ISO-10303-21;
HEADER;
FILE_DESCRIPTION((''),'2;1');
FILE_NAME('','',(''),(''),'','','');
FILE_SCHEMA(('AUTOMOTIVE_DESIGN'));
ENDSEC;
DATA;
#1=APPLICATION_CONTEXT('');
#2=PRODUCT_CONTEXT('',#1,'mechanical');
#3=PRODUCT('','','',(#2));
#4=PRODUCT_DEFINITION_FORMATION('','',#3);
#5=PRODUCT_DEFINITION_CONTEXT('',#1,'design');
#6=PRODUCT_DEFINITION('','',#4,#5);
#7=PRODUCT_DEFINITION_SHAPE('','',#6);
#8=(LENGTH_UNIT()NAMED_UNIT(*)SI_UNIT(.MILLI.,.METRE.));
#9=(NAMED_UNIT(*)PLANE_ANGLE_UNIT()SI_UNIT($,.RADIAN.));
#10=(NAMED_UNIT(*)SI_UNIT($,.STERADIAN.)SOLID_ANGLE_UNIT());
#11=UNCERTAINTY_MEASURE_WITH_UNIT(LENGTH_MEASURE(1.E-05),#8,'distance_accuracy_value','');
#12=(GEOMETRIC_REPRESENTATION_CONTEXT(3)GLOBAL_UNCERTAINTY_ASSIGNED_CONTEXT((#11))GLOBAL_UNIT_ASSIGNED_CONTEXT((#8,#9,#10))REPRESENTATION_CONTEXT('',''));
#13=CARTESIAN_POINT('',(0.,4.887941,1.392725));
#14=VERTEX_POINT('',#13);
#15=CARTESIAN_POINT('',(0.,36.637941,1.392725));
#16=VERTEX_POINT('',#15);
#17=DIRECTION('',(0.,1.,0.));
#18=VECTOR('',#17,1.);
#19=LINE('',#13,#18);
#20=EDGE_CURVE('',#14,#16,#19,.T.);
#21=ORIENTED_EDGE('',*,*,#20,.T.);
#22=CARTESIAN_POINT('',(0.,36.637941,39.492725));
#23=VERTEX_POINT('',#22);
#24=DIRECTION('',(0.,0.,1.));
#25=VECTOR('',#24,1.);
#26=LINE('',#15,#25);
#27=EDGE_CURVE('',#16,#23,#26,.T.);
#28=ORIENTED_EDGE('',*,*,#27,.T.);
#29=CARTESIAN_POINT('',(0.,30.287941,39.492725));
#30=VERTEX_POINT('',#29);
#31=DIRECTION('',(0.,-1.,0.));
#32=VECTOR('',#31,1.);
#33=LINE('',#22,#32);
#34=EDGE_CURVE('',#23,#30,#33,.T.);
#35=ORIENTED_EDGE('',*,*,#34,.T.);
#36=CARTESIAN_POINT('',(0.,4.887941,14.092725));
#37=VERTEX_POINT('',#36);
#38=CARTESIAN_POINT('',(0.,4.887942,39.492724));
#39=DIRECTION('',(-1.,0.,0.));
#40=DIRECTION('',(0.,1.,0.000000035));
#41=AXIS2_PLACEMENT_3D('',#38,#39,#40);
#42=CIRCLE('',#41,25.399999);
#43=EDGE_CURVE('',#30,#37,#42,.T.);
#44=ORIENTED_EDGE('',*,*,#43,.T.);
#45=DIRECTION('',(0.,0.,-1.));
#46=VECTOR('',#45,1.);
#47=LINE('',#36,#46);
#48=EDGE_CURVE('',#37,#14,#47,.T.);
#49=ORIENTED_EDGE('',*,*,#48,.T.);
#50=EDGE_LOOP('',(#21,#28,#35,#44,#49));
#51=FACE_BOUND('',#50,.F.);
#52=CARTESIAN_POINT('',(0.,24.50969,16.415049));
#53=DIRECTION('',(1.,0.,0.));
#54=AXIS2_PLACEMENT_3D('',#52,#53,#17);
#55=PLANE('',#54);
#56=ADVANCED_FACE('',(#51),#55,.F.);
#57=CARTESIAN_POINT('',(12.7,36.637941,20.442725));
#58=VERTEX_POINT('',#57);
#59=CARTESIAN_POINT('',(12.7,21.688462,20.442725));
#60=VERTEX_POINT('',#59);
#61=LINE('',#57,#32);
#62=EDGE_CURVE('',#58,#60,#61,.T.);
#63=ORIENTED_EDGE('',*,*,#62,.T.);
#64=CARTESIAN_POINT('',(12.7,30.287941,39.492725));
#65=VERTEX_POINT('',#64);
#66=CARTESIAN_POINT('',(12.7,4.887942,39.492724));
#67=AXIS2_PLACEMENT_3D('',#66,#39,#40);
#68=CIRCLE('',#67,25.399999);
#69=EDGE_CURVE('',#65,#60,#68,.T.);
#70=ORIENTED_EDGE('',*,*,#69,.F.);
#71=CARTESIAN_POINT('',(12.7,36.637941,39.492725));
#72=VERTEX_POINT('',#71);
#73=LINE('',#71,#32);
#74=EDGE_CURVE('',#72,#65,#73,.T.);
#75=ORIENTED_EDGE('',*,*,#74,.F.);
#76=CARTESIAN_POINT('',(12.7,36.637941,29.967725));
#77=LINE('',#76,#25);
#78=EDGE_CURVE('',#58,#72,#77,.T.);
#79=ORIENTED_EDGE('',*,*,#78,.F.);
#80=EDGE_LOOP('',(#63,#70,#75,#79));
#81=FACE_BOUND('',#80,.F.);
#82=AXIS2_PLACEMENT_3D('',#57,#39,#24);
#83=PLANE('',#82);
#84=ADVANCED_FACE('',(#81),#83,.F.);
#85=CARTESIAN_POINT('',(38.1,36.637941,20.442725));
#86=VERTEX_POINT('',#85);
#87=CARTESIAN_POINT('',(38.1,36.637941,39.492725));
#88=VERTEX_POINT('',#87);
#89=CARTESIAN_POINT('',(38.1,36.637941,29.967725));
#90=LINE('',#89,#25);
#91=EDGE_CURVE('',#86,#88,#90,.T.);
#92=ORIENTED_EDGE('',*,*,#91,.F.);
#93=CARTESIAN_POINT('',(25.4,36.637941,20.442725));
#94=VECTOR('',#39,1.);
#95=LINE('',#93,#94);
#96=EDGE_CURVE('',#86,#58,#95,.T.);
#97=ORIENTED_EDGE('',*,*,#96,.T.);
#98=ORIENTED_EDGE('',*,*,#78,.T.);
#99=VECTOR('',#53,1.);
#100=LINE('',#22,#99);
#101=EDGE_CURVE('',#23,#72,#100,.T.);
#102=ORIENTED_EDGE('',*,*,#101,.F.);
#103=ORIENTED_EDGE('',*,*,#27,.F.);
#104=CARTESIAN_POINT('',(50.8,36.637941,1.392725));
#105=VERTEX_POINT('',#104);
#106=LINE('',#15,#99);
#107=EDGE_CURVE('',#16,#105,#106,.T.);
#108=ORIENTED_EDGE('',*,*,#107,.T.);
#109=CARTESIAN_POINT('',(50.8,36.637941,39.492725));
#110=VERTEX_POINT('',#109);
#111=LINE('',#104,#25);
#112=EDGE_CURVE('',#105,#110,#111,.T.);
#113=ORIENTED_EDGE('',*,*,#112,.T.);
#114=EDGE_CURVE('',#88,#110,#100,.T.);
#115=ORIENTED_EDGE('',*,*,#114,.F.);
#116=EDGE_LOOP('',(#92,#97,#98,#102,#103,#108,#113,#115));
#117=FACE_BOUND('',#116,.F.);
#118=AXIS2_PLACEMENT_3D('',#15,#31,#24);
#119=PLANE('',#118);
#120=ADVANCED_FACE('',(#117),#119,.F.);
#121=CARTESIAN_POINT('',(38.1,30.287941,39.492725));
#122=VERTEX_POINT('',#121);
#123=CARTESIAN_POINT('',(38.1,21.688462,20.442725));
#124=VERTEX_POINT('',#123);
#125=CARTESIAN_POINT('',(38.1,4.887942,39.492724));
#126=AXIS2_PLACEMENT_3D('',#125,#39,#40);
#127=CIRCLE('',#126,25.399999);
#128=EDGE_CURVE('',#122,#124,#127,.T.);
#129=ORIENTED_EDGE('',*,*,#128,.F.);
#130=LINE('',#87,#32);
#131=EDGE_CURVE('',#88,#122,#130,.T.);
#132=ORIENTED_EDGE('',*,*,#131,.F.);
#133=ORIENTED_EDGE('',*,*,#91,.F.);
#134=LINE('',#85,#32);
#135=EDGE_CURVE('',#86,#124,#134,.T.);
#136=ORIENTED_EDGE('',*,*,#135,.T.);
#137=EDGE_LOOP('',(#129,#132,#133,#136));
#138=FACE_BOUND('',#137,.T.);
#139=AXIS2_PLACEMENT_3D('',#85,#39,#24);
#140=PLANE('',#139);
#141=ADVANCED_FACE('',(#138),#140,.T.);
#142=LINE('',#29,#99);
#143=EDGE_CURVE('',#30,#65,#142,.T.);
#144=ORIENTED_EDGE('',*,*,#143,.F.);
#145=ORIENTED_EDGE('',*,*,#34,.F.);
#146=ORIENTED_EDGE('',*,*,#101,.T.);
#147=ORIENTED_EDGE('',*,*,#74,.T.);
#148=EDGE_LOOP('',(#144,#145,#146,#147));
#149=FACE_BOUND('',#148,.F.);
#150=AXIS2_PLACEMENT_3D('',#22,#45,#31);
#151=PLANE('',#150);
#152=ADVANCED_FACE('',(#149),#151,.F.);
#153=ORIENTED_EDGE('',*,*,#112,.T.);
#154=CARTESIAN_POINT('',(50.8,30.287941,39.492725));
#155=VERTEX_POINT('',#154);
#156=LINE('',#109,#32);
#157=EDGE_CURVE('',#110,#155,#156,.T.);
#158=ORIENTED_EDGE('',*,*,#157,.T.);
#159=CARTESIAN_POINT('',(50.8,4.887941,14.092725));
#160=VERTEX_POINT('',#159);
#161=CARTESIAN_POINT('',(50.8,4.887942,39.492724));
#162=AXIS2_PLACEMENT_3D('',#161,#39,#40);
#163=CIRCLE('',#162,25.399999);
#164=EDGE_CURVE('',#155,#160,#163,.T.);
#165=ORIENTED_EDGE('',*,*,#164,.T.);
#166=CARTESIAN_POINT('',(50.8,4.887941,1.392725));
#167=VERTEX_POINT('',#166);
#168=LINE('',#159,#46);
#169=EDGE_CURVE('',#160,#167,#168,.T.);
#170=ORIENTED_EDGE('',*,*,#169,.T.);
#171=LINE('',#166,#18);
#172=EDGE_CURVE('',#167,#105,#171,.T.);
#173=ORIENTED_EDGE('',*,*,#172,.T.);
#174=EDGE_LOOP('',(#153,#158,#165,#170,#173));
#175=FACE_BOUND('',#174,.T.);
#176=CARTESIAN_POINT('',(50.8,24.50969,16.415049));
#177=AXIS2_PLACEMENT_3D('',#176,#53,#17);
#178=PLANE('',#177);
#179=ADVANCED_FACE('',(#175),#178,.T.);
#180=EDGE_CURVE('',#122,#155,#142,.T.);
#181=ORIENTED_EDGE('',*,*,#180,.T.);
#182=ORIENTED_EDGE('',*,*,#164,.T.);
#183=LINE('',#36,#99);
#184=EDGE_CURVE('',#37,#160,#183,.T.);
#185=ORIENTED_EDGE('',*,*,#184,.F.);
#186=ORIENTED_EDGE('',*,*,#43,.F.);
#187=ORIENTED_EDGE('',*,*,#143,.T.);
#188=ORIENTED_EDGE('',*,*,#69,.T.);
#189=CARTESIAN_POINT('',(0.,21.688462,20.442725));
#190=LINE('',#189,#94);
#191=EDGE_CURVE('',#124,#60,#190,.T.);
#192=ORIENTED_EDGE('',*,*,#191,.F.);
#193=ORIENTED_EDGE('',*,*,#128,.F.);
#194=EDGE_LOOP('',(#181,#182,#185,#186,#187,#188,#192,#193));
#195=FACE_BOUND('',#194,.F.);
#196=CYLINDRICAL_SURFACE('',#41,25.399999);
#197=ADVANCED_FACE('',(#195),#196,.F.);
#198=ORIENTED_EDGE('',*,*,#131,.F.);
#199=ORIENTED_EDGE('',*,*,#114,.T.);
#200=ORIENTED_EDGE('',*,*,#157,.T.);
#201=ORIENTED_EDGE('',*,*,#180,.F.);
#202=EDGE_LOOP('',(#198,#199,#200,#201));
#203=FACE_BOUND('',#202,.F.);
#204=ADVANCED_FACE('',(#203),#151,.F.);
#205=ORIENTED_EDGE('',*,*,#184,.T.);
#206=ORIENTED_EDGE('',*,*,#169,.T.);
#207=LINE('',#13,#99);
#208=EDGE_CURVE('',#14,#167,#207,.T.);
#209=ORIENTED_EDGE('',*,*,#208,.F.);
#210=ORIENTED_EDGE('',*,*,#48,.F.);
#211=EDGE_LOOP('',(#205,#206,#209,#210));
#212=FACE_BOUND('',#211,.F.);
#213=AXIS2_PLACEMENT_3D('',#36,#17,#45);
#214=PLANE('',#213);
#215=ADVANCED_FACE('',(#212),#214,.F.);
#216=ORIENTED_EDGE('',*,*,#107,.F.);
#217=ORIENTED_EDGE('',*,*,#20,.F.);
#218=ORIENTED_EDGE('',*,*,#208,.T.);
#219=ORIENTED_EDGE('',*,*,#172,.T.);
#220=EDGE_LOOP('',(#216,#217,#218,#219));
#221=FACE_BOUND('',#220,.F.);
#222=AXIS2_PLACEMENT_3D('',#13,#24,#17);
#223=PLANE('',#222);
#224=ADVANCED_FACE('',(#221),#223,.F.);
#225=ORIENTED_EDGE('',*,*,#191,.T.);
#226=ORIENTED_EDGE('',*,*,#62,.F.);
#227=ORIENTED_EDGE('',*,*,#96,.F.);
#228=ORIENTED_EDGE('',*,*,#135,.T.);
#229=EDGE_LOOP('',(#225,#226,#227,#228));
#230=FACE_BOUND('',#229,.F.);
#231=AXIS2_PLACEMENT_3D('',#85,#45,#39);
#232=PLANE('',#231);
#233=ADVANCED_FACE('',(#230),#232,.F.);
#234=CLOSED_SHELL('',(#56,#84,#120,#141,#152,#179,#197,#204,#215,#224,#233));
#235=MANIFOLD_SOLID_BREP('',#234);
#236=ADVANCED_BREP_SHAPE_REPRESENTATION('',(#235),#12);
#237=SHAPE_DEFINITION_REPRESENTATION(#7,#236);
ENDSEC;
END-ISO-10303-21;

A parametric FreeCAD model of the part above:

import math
import FreeCAD as App
import Part
import Sketcher

V = App.Vector
Q = App.Units.Quantity

doc = App.newDocument("Part")
params = doc.addObject("Spreadsheet::Sheet", "Params")
for row, (alias, value) in enumerate([
    ("sketch1_radius", "1 in"),
    ("sketch1_height", "0.5 in"),
    ("sketch1_width", "1.25 in"),
    ("pad1_length", "2 in"),
    ("sketch2_width", "1 in"),
    ("sketch2_height", "0.75 in"),
    ("pocket1_length", "1 in"),
], start=1):
    params.set(f"A{row}", alias)
    params.set(f"B{row}", "=" + value)
    params.setAlias(f"B{row}", alias)

body = doc.addObject("PartDesign::Body", "Body")

# Sketch on YZ plane
sketch1 = body.newObject("Sketcher::SketchObject", "Sketch")
sketch1.AttachmentSupport = (doc.getObject("YZ_Plane"), [""])
sketch1.MapMode = "FlatFace"
sketch1.addGeometry(Part.ArcOfCircle(Part.Circle(V(5, 39, 0), V(0, 0, 1), 25), math.radians(-90), math.radians(0)), False)
sketch1.addGeometry(Part.LineSegment(V(5, 14, 0), V(5, 1, 0)), False)
sketch1.addGeometry(Part.LineSegment(V(5, 1, 0), V(37, 1, 0)), False)
sketch1.addGeometry(Part.LineSegment(V(37, 1, 0), V(37, 39, 0)), False)
sketch1.addGeometry(Part.LineSegment(V(37, 39, 0), V(30, 39, 0)), False)
sketch1.addConstraint(Sketcher.Constraint("Coincident", 0, 1, 1, 1))
sketch1.addConstraint(Sketcher.Constraint("Coincident", 1, 2, 2, 1))
sketch1.addConstraint(Sketcher.Constraint("Coincident", 2, 2, 3, 1))
sketch1.addConstraint(Sketcher.Constraint("Coincident", 3, 2, 4, 1))
sketch1.addConstraint(Sketcher.Constraint("Coincident", 4, 2, 0, 2))
sketch1.addConstraint(Sketcher.Constraint("Vertical", 1))
sketch1.addConstraint(Sketcher.Constraint("Horizontal", 2))
sketch1.addConstraint(Sketcher.Constraint("Vertical", 3))
sketch1.addConstraint(Sketcher.Constraint("Horizontal", 4))
sketch1.addConstraint(Sketcher.Constraint("Horizontal", 0, 3, 3, 2))
sketch1.addConstraint(Sketcher.Constraint("Radius", 0, Q("1 in")))
sketch1.addConstraint(Sketcher.Constraint("DistanceY", 1, 2, 1, 1, Q("0.5 in")))
sketch1.addConstraint(Sketcher.Constraint("DistanceX", 0, 1, 4, 2, Q("1 in")))
sketch1.addConstraint(Sketcher.Constraint("DistanceX", 2, 1, 2, 2, Q("1.25 in")))
sketch1.addConstraint(Sketcher.Constraint("DistanceX", -1, 1, 0, 3, Q("4.887942 mm")))
sketch1.addConstraint(Sketcher.Constraint("DistanceY", -1, 1, 0, 3, Q("39.492724 mm")))
sketch1.setExpression("Constraints[10]", "Params.sketch1_radius")
sketch1.setExpression("Constraints[11]", "Params.sketch1_height")
sketch1.setExpression("Constraints[13]", "Params.sketch1_width")
pad1 = body.newObject("PartDesign::Pad", "Pad")
pad1.Profile = sketch1
pad1.setExpression("Length", "Params.pad1_length")

# Sketch on XZ plane
sketch2 = body.newObject("Sketcher::SketchObject", "Sketch001")
sketch2.AttachmentSupport = (doc.getObject("XZ_Plane"), [""])
sketch2.MapMode = "FlatFace"
sketch2.AttachmentOffset = App.Placement(V(0, 0, -36.637941), App.Rotation())
sketch2.addGeometry(Part.LineSegment(V(38, 39, 0), V(38, 20, 0)), False)
sketch2.addGeometry(Part.LineSegment(V(38, 20, 0), V(13, 20, 0)), False)
sketch2.addGeometry(Part.LineSegment(V(13, 20, 0), V(13, 39, 0)), False)
sketch2.addGeometry(Part.LineSegment(V(13, 39, 0), V(38, 39, 0)), False)
sketch2.addConstraint(Sketcher.Constraint("Coincident", 0, 2, 1, 1))
sketch2.addConstraint(Sketcher.Constraint("Coincident", 1, 2, 2, 1))
sketch2.addConstraint(Sketcher.Constraint("Coincident", 2, 2, 3, 1))
sketch2.addConstraint(Sketcher.Constraint("Coincident", 3, 2, 0, 1))
sketch2.addConstraint(Sketcher.Constraint("Vertical", 0))
sketch2.addConstraint(Sketcher.Constraint("Horizontal", 1))
sketch2.addConstraint(Sketcher.Constraint("Vertical", 2))
sketch2.addConstraint(Sketcher.Constraint("Horizontal", 3))
sketch2.addConstraint(Sketcher.Constraint("DistanceX", 1, 2, 1, 1, Q("1 in")))
sketch2.addConstraint(Sketcher.Constraint("DistanceY", 0, 2, 0, 1, Q("0.75 in")))
sketch2.addConstraint(Sketcher.Constraint("DistanceX", -1, 1, 0, 2, Q("1.5 in")))
sketch2.addConstraint(Sketcher.Constraint("DistanceY", -1, 1, 0, 2, Q("20.442725 mm")))
sketch2.setExpression("Constraints[8]", "Params.sketch2_width")
sketch2.setExpression("Constraints[9]", "Params.sketch2_height")
pocket1 = body.newObject("PartDesign::Pocket", "Pocket")
pocket1.Profile = sketch2
pocket1.setExpression("Length", "Params.pocket1_length")
pocket1.Reversed = True

doc.recompute()
